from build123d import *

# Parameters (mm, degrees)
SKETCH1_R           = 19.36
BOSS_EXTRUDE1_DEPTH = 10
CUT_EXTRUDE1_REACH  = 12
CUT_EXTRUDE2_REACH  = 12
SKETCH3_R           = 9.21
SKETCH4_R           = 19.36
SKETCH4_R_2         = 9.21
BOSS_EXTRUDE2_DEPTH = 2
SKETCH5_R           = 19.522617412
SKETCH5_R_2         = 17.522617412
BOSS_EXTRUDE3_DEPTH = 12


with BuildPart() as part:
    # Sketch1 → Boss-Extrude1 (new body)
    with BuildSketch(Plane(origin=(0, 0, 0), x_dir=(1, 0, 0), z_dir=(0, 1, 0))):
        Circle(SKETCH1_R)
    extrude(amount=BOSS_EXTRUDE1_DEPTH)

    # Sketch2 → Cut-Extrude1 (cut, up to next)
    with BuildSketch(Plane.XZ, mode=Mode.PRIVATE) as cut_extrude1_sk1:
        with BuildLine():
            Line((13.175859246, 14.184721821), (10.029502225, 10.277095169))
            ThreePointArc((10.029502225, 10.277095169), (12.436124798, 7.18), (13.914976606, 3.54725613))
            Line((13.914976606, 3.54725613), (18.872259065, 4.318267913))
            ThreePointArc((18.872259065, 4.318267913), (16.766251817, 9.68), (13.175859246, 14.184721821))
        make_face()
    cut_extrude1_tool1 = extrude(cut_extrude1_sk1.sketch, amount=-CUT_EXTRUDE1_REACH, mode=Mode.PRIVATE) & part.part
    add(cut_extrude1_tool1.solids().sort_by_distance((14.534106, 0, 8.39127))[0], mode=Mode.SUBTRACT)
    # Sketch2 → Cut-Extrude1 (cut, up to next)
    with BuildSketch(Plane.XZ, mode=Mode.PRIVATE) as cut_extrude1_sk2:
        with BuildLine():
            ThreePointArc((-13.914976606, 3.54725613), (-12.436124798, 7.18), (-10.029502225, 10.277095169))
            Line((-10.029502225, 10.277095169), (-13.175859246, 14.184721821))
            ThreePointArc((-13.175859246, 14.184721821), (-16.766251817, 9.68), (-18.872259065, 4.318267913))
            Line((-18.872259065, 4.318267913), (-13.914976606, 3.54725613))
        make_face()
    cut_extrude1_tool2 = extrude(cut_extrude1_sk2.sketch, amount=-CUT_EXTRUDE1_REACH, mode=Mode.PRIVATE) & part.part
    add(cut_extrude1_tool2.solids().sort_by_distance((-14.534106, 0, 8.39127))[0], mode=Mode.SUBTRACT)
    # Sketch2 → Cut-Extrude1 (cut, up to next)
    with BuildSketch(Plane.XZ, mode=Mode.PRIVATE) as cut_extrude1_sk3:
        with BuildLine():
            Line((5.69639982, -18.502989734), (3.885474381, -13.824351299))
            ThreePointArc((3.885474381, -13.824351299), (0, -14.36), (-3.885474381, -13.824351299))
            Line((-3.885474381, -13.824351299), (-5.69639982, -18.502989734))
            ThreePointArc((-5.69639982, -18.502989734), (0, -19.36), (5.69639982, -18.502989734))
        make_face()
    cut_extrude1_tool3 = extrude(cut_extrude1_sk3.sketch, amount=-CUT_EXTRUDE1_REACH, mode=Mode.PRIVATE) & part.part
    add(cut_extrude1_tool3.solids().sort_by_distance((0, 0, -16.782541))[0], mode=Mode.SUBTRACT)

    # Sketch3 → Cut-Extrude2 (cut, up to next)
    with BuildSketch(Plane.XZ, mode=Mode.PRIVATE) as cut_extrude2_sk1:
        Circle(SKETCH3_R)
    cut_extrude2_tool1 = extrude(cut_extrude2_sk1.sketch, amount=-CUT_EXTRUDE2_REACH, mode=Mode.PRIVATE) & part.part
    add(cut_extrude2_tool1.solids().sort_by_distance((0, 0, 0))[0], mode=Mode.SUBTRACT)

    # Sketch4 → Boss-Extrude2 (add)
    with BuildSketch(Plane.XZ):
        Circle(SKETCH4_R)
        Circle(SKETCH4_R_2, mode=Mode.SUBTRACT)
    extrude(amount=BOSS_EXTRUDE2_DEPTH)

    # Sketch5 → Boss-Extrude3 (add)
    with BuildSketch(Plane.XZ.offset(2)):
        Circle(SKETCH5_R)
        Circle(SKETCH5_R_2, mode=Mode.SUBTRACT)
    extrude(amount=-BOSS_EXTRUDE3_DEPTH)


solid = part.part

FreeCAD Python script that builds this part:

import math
import FreeCAD as App
import Part
import Sketcher

V = App.Vector
Q = App.Units.Quantity

doc = App.newDocument("Part")
body = doc.addObject("PartDesign::Body", "Body")

sketch1 = doc.addObject("Sketcher::SketchObject", "Sketch")
body.addObject(sketch1)
sketch1.AttachmentSupport = (doc.XZ_Plane, [""])
sketch1.MapMode = "FlatFace"
sketch1.addGeometry(Part.Circle(V(0, 0, 0), V(0, 0, 1), 19), False)
sketch1.addConstraint([
    Sketcher.Constraint("Coincident", 0, 3, -1, 1),
    Sketcher.Constraint("Diameter", 0, Q("38.72 mm")),
])
pad1 = doc.addObject("PartDesign::Pad", "Pad")
body.addObject(pad1)
pad1.Profile = sketch1
pad1.Length = 10
pad1.Reversed = True

sketch2 = doc.addObject("Sketcher::SketchObject", "Sketch001")
body.addObject(sketch2)
sketch2.AttachmentSupport = (doc.XZ_Plane, [""])
sketch2.MapMode = "FlatFace"
sketch2.addGeometry([
    Part.LineSegment(V(13, 14, 0), V(10, 10, 0)),
    Part.ArcOfCircle(Part.Circle(V(0, 0, 0), V(0, 0, 1), 14), math.radians(14), math.radians(46)),
    Part.LineSegment(V(14, 4, 0), V(19, 4, 0)),
    Part.ArcOfCircle(Part.Circle(V(0, 0, 0), V(0, 0, 1), 19), math.radians(13), math.radians(47)),
], False)
sketch2.addConstraint([
    Sketcher.Constraint("Coincident", 0, 2, 1, 2),
    Sketcher.Constraint("Coincident", 1, 1, 2, 1),
    Sketcher.Constraint("Coincident", 2, 2, 3, 1),
    Sketcher.Constraint("Coincident", 3, 2, 0, 1),
    Sketcher.Constraint("Coincident", 1, 3, -1, 1),
    Sketcher.Constraint("Coincident", 3, 3, -1, 1),
    Sketcher.Constraint("Equal", 0, 2),
    Sketcher.Constraint("Radius", 1, Q("14.36 mm")),
    Sketcher.Constraint("Radius", 3, Q("19.36 mm")),
    Sketcher.Constraint("DistanceX", 3, 2, 2, 2, Q("5.6964 mm")),
    Sketcher.Constraint("DistanceX", -1, 1, 2, 2, Q("18.872259 mm")),
    Sketcher.Constraint("DistanceY", 1, 1, 0, 2, Q("6.729839 mm")),
])
pocket1 = doc.addObject("PartDesign::Pocket", "Pocket")
body.addObject(pocket1)
pocket1.Profile = sketch2
pocket1.Type = "UpToFirst"

sketch3 = doc.addObject("Sketcher::SketchObject", "Sketch002")
body.addObject(sketch3)
sketch3.AttachmentSupport = (doc.XZ_Plane, [""])
sketch3.MapMode = "FlatFace"
sketch3.addGeometry([
    Part.ArcOfCircle(Part.Circle(V(0, 0, 0), V(0, 0, 1), 14), math.radians(134), math.radians(166)),
    Part.LineSegment(V(-10, 10, 0), V(-13, 14, 0)),
    Part.ArcOfCircle(Part.Circle(V(0, 0, 0), V(0, 0, 1), 19), math.radians(133), math.radians(167)),
    Part.LineSegment(V(-19, 4, 0), V(-14, 4, 0)),
], False)
sketch3.addConstraint([
    Sketcher.Constraint("Coincident", 0, 1, 1, 1),
    Sketcher.Constraint("Coincident", 1, 2, 2, 1),
    Sketcher.Constraint("Coincident", 2, 2, 3, 1),
    Sketcher.Constraint("Coincident", 3, 2, 0, 2),
    Sketcher.Constraint("Coincident", 0, 3, -1, 1),
    Sketcher.Constraint("Coincident", 2, 3, -1, 1),
    Sketcher.Constraint("Equal", 1, 3),
    Sketcher.Constraint("Radius", 0, Q("14.36 mm")),
    Sketcher.Constraint("Radius", 2, Q("19.36 mm")),
    Sketcher.Constraint("DistanceX", 2, 2, 1, 2, Q("5.6964 mm")),
    Sketcher.Constraint("DistanceX", 1, 2, -1, 1, Q("13.175859 mm")),
    Sketcher.Constraint("DistanceY", 3, 2, 2, 2, Q("0.771012 mm")),
])
pocket2 = doc.addObject("PartDesign::Pocket", "Pocket001")
body.addObject(pocket2)
pocket2.Profile = sketch3
pocket2.Type = "UpToFirst"

sketch4 = doc.addObject("Sketcher::SketchObject", "Sketch003")
body.addObject(sketch4)
sketch4.AttachmentSupport = (doc.XZ_Plane, [""])
sketch4.MapMode = "FlatFace"
sketch4.addGeometry([
    Part.LineSegment(V(6, -19, 0), V(4, -14, 0)),
    Part.ArcOfCircle(Part.Circle(V(0, 0, 0), V(0, 0, 1), 14), math.radians(-106), math.radians(-74)),
    Part.LineSegment(V(-4, -14, 0), V(-6, -19, 0)),
    Part.ArcOfCircle(Part.Circle(V(0, 0, 0), V(0, 0, 1), 19), math.radians(-107), math.radians(-73)),
], False)
sketch4.addConstraint([
    Sketcher.Constraint("Coincident", 0, 2, 1, 2),
    Sketcher.Constraint("Coincident", 1, 1, 2, 1),
    Sketcher.Constraint("Coincident", 2, 2, 3, 1),
    Sketcher.Constraint("Coincident", 3, 2, 0, 1),
    Sketcher.Constraint("Coincident", 1, 3, -1, 1),
    Sketcher.Constraint("Coincident", 3, 3, -1, 1),
    Sketcher.Constraint("Horizontal", 0, 2, 1, 1),
    Sketcher.Constraint("Horizontal", 2, 2, 3, 2),
    Sketcher.Constraint("Radius", 1, Q("14.36 mm")),
    Sketcher.Constraint("Radius", 3, Q("19.36 mm")),
    Sketcher.Constraint("DistanceX", 2, 2, -1, 1, Q("5.6964 mm")),
    Sketcher.Constraint("DistanceY", 0, 2, -1, 1, Q("13.824351 mm")),
])
pocket3 = doc.addObject("PartDesign::Pocket", "Pocket002")
body.addObject(pocket3)
pocket3.Profile = sketch4
pocket3.Type = "UpToFirst"

sketch5 = doc.addObject("Sketcher::SketchObject", "Sketch004")
body.addObject(sketch5)
sketch5.AttachmentSupport = (doc.XZ_Plane, [""])
sketch5.MapMode = "FlatFace"
sketch5.addGeometry(Part.Circle(V(0, 0, 0), V(0, 0, 1), 9), False)
sketch5.addConstraint([
    Sketcher.Constraint("Coincident", 0, 3, -1, 1),
    Sketcher.Constraint("Diameter", 0, Q("18.42 mm")),
])
pocket4 = doc.addObject("PartDesign::Pocket", "Pocket003")
body.addObject(pocket4)
pocket4.Profile = sketch5
pocket4.Type = "UpToFirst"

sketch6 = doc.addObject("Sketcher::SketchObject", "Sketch005")
body.addObject(sketch6)
sketch6.AttachmentSupport = (doc.XZ_Plane, [""])
sketch6.MapMode = "FlatFace"
sketch6.addGeometry([
    Part.Circle(V(0, 0, 0), V(0, 0, 1), 19),
    Part.Circle(V(0, 0, 0), V(0, 0, 1), 9),
], False)
sketch6.addConstraint([
    Sketcher.Constraint("Coincident", 0, 3, -1, 1),
    Sketcher.Constraint("Coincident", 1, 3, -1, 1),
    Sketcher.Constraint("Diameter", 0, Q("38.72 mm")),
    Sketcher.Constraint("Diameter", 1, Q("18.42 mm")),
])
pad2 = doc.addObject("PartDesign::Pad", "Pad001")
body.addObject(pad2)
pad2.Profile = sketch6
pad2.Length = 2

sketch7 = doc.addObject("Sketcher::SketchObject", "Sketch006")
body.addObject(sketch7)
sketch7.AttachmentSupport = (doc.XZ_Plane, [""])
sketch7.MapMode = "FlatFace"
sketch7.AttachmentOffset = App.Placement(V(0, 0, 2), App.Rotation())
sketch7.addGeometry([
    Part.Circle(V(0, 0, 0), V(0, 0, 1), 20),
    Part.Circle(V(0, 0, 0), V(0, 0, 1), 18),
], False)
sketch7.addConstraint([
    Sketcher.Constraint("Coincident", 0, 3, -1, 1),
    Sketcher.Constraint("Coincident", 1, 3, -1, 1),
    Sketcher.Constraint("Diameter", 0, Q("39.045235 mm")),
    Sketcher.Constraint("Diameter", 1, Q("35.045235 mm")),
])
pad3 = doc.addObject("PartDesign::Pad", "Pad002")
body.addObject(pad3)
pad3.Profile = sketch7
pad3.Length = 12
pad3.Reversed = True

doc.recompute()
